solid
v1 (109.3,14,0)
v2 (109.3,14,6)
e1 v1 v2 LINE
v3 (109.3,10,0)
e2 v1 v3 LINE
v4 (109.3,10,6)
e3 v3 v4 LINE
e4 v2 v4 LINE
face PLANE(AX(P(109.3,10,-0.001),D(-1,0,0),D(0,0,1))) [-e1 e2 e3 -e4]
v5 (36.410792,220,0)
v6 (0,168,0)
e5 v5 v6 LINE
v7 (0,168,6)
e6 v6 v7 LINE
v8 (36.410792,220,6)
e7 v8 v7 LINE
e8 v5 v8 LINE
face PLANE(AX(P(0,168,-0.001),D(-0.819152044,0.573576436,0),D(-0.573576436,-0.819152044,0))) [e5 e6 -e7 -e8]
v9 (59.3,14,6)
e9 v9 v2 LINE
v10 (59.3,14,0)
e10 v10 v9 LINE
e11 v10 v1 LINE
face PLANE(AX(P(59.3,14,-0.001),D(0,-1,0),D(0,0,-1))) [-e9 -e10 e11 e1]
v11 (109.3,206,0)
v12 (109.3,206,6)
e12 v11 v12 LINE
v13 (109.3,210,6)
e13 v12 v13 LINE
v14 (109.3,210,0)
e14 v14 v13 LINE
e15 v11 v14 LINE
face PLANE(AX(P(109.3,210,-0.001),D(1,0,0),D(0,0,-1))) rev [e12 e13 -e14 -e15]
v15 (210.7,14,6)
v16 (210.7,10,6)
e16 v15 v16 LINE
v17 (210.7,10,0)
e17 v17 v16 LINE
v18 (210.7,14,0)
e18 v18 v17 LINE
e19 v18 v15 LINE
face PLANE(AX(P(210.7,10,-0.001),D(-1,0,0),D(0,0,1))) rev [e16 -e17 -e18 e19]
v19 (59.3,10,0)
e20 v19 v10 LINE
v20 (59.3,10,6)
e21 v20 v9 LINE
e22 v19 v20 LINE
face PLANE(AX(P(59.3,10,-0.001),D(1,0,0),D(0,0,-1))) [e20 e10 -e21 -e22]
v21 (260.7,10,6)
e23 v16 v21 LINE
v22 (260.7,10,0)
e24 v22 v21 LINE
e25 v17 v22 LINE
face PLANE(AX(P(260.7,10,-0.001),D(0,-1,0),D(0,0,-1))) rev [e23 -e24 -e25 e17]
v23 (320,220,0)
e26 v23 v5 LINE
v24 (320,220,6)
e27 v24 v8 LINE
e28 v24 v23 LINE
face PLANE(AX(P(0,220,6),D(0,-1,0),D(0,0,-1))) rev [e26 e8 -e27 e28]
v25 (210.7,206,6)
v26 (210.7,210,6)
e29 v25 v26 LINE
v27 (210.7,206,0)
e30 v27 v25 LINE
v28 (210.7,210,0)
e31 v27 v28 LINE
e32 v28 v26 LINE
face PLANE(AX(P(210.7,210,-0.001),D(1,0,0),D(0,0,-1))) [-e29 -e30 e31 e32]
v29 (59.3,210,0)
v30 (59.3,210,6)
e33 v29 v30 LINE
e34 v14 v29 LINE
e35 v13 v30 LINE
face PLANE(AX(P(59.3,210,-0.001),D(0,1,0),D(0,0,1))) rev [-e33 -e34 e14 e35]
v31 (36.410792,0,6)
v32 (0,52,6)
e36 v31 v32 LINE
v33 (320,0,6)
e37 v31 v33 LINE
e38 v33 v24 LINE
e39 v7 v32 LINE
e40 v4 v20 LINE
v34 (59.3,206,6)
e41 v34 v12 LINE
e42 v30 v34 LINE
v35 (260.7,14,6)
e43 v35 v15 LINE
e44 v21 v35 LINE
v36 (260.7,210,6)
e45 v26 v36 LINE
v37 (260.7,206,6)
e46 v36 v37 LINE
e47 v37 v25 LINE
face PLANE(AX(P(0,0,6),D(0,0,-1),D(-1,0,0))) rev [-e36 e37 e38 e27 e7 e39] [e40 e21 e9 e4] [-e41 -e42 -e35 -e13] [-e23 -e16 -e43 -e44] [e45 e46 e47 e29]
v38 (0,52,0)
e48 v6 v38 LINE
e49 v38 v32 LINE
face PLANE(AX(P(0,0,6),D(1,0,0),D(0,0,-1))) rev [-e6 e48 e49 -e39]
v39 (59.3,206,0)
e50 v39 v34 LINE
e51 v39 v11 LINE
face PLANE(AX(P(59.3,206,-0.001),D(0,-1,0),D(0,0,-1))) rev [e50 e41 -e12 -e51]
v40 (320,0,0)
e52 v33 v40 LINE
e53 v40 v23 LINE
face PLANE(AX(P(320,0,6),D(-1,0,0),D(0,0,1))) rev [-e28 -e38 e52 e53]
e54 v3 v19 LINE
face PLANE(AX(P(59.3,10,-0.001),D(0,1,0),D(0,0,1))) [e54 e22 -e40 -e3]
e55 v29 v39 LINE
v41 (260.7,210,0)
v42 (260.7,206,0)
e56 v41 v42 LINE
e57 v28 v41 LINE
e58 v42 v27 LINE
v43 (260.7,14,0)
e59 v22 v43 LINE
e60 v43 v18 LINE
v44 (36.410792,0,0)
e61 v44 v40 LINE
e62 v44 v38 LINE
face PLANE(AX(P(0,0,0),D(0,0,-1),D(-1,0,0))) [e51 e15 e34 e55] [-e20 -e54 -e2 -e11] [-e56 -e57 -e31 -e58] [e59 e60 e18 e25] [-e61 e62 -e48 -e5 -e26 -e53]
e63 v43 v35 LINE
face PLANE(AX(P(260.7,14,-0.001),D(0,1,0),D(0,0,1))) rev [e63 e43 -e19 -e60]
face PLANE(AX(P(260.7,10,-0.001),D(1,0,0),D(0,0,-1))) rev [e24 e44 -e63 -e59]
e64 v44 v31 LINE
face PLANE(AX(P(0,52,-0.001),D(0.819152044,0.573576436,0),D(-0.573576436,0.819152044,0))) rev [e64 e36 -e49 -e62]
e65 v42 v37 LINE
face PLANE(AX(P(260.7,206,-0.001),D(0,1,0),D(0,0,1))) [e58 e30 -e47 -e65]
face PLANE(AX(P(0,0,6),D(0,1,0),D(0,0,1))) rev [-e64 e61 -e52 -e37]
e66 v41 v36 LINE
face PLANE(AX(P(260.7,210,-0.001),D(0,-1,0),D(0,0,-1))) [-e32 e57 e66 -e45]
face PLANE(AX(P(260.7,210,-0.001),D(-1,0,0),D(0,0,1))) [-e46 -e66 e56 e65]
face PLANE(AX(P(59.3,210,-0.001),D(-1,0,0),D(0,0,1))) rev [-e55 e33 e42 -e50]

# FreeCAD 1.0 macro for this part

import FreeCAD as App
import Part
import Sketcher

V = App.Vector
Q = App.Units.Quantity

doc = App.newDocument("Part")
body = doc.addObject("PartDesign::Body", "Body")

# Sketch on XY plane
sketch1 = body.newObject("Sketcher::SketchObject", "Sketch")
sketch1.AttachmentSupport = (doc.getObject("XY_Plane"), [""])
sketch1.MapMode = "FlatFace"
sketch1.addGeometry([
    Part.LineSegment(V(0, 220, 0), V(0, 0, 0)),
    Part.LineSegment(V(0, 0, 0), V(320, 0, 0)),
    Part.LineSegment(V(320, 0, 0), V(320, 220, 0)),
    Part.LineSegment(V(320, 220, 0), V(0, 220, 0)),
], False)
sketch1.addConstraint([
    Sketcher.Constraint("Coincident", 0, 2, 1, 1),
    Sketcher.Constraint("Coincident", 1, 2, 2, 1),
    Sketcher.Constraint("Coincident", 2, 2, 3, 1),
    Sketcher.Constraint("Coincident", 3, 2, 0, 1),
    Sketcher.Constraint("Vertical", 0),
    Sketcher.Constraint("Horizontal", 1),
    Sketcher.Constraint("Vertical", 2),
    Sketcher.Constraint("Horizontal", 3),
    Sketcher.Constraint("Coincident", 0, 2, -1, 1),
    Sketcher.Constraint("DistanceX", 1, 1, 1, 2, Q("320 mm")),
    Sketcher.Constraint("DistanceY", 0, 2, 0, 1, Q("220 mm")),
])
pad1 = body.newObject("PartDesign::Pad", "Pad")
pad1.Profile = sketch1
pad1.Length = 6

# Sketch on XY plane
sketch2 = body.newObject("Sketcher::SketchObject", "Sketch001")
sketch2.AttachmentSupport = (doc.getObject("XY_Plane"), [""])
sketch2.MapMode = "FlatFace"
sketch2.AttachmentOffset = App.Placement(V(0, 0, 6), App.Rotation())
sketch2.addGeometry([
    Part.LineSegment(V(59.3, 210, 0), V(59.3, 206, 0)),
    Part.LineSegment(V(59.3, 206, 0), V(109.3, 206, 0)),
    Part.LineSegment(V(109.3, 206, 0), V(109.3, 210, 0)),
    Part.LineSegment(V(109.3, 210, 0), V(59.3, 210, 0)),
], False)
sketch2.addConstraint([
    Sketcher.Constraint("Coincident", 0, 2, 1, 1),
    Sketcher.Constraint("Coincident", 1, 2, 2, 1),
    Sketcher.Constraint("Coincident", 2, 2, 3, 1),
    Sketcher.Constraint("Coincident", 3, 2, 0, 1),
    Sketcher.Constraint("Vertical", 0),
    Sketcher.Constraint("Horizontal", 1),
    Sketcher.Constraint("Vertical", 2),
    Sketcher.Constraint("Horizontal", 3),
    Sketcher.Constraint("DistanceX", 1, 1, 1, 2, Q("50 mm")),
    Sketcher.Constraint("DistanceY", 0, 2, 0, 1, Q("4 mm")),
    Sketcher.Constraint("DistanceY", -1, 1, 0, 2, Q("206 mm")),
    Sketcher.Constraint("DistanceX", -1, 1, 0, 2, Q("59.3 mm")),
])
pocket1 = body.newObject("PartDesign::Pocket", "Pocket")
pocket1.Profile = sketch2
pocket1.Length = 6
doc.recompute()

datumplane = body.newObject("PartDesign::Plane", "DatumPlane")
datumplane.AttachmentSupport = (doc.getObject("YZ_Plane"), [""])
datumplane.MapMode = "FlatFace"
datumplane.AttachmentOffset = App.Placement(V(0, 0, 160), App.Rotation())
mirrored = body.newObject("PartDesign::Mirrored", "Mirrored")
mirrored.Originals = [pocket1]
mirrored.MirrorPlane = (datumplane, [""])
body.Tip = mirrored
doc.recompute()

datumplane2 = body.newObject("PartDesign::Plane", "DatumPlane001")
datumplane2.AttachmentSupport = (doc.getObject("XZ_Plane"), [""])
datumplane2.MapMode = "FlatFace"
datumplane2.AttachmentOffset = App.Placement(V(0, 0, -110), App.Rotation())
mirrored2 = body.newObject("PartDesign::Mirrored", "Mirrored001")
mirrored2.Originals = [pocket1]
mirrored2.MirrorPlane = (datumplane2, [""])
body.Tip = mirrored2

# Sketch on XY plane
sketch3 = body.newObject("Sketcher::SketchObject", "Sketch002")
sketch3.AttachmentSupport = (doc.getObject("XY_Plane"), [""])
sketch3.MapMode = "FlatFace"
sketch3.AttachmentOffset = App.Placement(V(0, 0, 6), App.Rotation())
sketch3.addGeometry([
    Part.LineSegment(V(260.7, 10, 0), V(260.7, 14, 0)),
    Part.LineSegment(V(260.7, 14, 0), V(210.7, 14, 0)),
    Part.LineSegment(V(210.7, 14, 0), V(210.7, 10, 0)),
    Part.LineSegment(V(210.7, 10, 0), V(260.7, 10, 0)),
], False)
sketch3.addConstraint([
    Sketcher.Constraint("Coincident", 0, 2, 1, 1),
    Sketcher.Constraint("Coincident", 1, 2, 2, 1),
    Sketcher.Constraint("Coincident", 2, 2, 3, 1),
    Sketcher.Constraint("Coincident", 3, 2, 0, 1),
    Sketcher.Constraint("Vertical", 0),
    Sketcher.Constraint("Horizontal", 1),
    Sketcher.Constraint("Vertical", 2),
    Sketcher.Constraint("Horizontal", 3),
    Sketcher.Constraint("DistanceX", 1, 2, 1, 1, Q("50 mm")),
    Sketcher.Constraint("DistanceY", 0, 1, 0, 2, Q("4 mm")),
    Sketcher.Constraint("DistanceY", -1, 1, 0, 2, Q("14 mm")),
    Sketcher.Constraint("DistanceX", -1, 1, 0, 2, Q("260.7 mm")),
])
pocket2 = body.newObject("PartDesign::Pocket", "Pocket001")
pocket2.Profile = sketch3
pocket2.Length = 6

# Sketch on XY plane
sketch4 = body.newObject("Sketcher::SketchObject", "Sketch003")
sketch4.AttachmentSupport = (doc.getObject("XY_Plane"), [""])
sketch4.MapMode = "FlatFace"
sketch4.AttachmentOffset = App.Placement(V(0, 0, 6), App.Rotation())
sketch4.addGeometry([
    Part.LineSegment(V(36.410792, 0, 0), V(0, 52, 0)),
    Part.LineSegment(V(0, 52, 0), V(0, 0, 0)),
    Part.LineSegment(V(0, 0, 0), V(36.410792, 0, 0)),
], False)
sketch4.addConstraint([
    Sketcher.Constraint("Coincident", 0, 2, 1, 1),
    Sketcher.Constraint("Coincident", 1, 2, 2, 1),
    Sketcher.Constraint("Coincident", 2, 2, 0, 1),
    Sketcher.Constraint("Vertical", 1),
    Sketcher.Constraint("Horizontal", 2),
    Sketcher.Constraint("Coincident", 1, 2, -1, 1),
    Sketcher.Constraint("DistanceY", 1, 2, 1, 1, Q("52 mm")),
    Sketcher.Constraint("Angle", 0, Q("125 deg")),
])
pocket3 = body.newObject("PartDesign::Pocket", "Pocket002")
pocket3.Profile = sketch4
pocket3.Length = 6
doc.recompute()

datumplane3 = body.newObject("PartDesign::Plane", "DatumPlane002")
datumplane3.AttachmentSupport = (doc.getObject("XZ_Plane"), [""])
datumplane3.MapMode = "FlatFace"
datumplane3.AttachmentOffset = App.Placement(V(0, 0, -110), App.Rotation())
mirrored3 = body.newObject("PartDesign::Mirrored", "Mirrored002")
mirrored3.Originals = [pocket3]
mirrored3.MirrorPlane = (datumplane3, [""])
body.Tip = mirrored3

doc.recompute()
